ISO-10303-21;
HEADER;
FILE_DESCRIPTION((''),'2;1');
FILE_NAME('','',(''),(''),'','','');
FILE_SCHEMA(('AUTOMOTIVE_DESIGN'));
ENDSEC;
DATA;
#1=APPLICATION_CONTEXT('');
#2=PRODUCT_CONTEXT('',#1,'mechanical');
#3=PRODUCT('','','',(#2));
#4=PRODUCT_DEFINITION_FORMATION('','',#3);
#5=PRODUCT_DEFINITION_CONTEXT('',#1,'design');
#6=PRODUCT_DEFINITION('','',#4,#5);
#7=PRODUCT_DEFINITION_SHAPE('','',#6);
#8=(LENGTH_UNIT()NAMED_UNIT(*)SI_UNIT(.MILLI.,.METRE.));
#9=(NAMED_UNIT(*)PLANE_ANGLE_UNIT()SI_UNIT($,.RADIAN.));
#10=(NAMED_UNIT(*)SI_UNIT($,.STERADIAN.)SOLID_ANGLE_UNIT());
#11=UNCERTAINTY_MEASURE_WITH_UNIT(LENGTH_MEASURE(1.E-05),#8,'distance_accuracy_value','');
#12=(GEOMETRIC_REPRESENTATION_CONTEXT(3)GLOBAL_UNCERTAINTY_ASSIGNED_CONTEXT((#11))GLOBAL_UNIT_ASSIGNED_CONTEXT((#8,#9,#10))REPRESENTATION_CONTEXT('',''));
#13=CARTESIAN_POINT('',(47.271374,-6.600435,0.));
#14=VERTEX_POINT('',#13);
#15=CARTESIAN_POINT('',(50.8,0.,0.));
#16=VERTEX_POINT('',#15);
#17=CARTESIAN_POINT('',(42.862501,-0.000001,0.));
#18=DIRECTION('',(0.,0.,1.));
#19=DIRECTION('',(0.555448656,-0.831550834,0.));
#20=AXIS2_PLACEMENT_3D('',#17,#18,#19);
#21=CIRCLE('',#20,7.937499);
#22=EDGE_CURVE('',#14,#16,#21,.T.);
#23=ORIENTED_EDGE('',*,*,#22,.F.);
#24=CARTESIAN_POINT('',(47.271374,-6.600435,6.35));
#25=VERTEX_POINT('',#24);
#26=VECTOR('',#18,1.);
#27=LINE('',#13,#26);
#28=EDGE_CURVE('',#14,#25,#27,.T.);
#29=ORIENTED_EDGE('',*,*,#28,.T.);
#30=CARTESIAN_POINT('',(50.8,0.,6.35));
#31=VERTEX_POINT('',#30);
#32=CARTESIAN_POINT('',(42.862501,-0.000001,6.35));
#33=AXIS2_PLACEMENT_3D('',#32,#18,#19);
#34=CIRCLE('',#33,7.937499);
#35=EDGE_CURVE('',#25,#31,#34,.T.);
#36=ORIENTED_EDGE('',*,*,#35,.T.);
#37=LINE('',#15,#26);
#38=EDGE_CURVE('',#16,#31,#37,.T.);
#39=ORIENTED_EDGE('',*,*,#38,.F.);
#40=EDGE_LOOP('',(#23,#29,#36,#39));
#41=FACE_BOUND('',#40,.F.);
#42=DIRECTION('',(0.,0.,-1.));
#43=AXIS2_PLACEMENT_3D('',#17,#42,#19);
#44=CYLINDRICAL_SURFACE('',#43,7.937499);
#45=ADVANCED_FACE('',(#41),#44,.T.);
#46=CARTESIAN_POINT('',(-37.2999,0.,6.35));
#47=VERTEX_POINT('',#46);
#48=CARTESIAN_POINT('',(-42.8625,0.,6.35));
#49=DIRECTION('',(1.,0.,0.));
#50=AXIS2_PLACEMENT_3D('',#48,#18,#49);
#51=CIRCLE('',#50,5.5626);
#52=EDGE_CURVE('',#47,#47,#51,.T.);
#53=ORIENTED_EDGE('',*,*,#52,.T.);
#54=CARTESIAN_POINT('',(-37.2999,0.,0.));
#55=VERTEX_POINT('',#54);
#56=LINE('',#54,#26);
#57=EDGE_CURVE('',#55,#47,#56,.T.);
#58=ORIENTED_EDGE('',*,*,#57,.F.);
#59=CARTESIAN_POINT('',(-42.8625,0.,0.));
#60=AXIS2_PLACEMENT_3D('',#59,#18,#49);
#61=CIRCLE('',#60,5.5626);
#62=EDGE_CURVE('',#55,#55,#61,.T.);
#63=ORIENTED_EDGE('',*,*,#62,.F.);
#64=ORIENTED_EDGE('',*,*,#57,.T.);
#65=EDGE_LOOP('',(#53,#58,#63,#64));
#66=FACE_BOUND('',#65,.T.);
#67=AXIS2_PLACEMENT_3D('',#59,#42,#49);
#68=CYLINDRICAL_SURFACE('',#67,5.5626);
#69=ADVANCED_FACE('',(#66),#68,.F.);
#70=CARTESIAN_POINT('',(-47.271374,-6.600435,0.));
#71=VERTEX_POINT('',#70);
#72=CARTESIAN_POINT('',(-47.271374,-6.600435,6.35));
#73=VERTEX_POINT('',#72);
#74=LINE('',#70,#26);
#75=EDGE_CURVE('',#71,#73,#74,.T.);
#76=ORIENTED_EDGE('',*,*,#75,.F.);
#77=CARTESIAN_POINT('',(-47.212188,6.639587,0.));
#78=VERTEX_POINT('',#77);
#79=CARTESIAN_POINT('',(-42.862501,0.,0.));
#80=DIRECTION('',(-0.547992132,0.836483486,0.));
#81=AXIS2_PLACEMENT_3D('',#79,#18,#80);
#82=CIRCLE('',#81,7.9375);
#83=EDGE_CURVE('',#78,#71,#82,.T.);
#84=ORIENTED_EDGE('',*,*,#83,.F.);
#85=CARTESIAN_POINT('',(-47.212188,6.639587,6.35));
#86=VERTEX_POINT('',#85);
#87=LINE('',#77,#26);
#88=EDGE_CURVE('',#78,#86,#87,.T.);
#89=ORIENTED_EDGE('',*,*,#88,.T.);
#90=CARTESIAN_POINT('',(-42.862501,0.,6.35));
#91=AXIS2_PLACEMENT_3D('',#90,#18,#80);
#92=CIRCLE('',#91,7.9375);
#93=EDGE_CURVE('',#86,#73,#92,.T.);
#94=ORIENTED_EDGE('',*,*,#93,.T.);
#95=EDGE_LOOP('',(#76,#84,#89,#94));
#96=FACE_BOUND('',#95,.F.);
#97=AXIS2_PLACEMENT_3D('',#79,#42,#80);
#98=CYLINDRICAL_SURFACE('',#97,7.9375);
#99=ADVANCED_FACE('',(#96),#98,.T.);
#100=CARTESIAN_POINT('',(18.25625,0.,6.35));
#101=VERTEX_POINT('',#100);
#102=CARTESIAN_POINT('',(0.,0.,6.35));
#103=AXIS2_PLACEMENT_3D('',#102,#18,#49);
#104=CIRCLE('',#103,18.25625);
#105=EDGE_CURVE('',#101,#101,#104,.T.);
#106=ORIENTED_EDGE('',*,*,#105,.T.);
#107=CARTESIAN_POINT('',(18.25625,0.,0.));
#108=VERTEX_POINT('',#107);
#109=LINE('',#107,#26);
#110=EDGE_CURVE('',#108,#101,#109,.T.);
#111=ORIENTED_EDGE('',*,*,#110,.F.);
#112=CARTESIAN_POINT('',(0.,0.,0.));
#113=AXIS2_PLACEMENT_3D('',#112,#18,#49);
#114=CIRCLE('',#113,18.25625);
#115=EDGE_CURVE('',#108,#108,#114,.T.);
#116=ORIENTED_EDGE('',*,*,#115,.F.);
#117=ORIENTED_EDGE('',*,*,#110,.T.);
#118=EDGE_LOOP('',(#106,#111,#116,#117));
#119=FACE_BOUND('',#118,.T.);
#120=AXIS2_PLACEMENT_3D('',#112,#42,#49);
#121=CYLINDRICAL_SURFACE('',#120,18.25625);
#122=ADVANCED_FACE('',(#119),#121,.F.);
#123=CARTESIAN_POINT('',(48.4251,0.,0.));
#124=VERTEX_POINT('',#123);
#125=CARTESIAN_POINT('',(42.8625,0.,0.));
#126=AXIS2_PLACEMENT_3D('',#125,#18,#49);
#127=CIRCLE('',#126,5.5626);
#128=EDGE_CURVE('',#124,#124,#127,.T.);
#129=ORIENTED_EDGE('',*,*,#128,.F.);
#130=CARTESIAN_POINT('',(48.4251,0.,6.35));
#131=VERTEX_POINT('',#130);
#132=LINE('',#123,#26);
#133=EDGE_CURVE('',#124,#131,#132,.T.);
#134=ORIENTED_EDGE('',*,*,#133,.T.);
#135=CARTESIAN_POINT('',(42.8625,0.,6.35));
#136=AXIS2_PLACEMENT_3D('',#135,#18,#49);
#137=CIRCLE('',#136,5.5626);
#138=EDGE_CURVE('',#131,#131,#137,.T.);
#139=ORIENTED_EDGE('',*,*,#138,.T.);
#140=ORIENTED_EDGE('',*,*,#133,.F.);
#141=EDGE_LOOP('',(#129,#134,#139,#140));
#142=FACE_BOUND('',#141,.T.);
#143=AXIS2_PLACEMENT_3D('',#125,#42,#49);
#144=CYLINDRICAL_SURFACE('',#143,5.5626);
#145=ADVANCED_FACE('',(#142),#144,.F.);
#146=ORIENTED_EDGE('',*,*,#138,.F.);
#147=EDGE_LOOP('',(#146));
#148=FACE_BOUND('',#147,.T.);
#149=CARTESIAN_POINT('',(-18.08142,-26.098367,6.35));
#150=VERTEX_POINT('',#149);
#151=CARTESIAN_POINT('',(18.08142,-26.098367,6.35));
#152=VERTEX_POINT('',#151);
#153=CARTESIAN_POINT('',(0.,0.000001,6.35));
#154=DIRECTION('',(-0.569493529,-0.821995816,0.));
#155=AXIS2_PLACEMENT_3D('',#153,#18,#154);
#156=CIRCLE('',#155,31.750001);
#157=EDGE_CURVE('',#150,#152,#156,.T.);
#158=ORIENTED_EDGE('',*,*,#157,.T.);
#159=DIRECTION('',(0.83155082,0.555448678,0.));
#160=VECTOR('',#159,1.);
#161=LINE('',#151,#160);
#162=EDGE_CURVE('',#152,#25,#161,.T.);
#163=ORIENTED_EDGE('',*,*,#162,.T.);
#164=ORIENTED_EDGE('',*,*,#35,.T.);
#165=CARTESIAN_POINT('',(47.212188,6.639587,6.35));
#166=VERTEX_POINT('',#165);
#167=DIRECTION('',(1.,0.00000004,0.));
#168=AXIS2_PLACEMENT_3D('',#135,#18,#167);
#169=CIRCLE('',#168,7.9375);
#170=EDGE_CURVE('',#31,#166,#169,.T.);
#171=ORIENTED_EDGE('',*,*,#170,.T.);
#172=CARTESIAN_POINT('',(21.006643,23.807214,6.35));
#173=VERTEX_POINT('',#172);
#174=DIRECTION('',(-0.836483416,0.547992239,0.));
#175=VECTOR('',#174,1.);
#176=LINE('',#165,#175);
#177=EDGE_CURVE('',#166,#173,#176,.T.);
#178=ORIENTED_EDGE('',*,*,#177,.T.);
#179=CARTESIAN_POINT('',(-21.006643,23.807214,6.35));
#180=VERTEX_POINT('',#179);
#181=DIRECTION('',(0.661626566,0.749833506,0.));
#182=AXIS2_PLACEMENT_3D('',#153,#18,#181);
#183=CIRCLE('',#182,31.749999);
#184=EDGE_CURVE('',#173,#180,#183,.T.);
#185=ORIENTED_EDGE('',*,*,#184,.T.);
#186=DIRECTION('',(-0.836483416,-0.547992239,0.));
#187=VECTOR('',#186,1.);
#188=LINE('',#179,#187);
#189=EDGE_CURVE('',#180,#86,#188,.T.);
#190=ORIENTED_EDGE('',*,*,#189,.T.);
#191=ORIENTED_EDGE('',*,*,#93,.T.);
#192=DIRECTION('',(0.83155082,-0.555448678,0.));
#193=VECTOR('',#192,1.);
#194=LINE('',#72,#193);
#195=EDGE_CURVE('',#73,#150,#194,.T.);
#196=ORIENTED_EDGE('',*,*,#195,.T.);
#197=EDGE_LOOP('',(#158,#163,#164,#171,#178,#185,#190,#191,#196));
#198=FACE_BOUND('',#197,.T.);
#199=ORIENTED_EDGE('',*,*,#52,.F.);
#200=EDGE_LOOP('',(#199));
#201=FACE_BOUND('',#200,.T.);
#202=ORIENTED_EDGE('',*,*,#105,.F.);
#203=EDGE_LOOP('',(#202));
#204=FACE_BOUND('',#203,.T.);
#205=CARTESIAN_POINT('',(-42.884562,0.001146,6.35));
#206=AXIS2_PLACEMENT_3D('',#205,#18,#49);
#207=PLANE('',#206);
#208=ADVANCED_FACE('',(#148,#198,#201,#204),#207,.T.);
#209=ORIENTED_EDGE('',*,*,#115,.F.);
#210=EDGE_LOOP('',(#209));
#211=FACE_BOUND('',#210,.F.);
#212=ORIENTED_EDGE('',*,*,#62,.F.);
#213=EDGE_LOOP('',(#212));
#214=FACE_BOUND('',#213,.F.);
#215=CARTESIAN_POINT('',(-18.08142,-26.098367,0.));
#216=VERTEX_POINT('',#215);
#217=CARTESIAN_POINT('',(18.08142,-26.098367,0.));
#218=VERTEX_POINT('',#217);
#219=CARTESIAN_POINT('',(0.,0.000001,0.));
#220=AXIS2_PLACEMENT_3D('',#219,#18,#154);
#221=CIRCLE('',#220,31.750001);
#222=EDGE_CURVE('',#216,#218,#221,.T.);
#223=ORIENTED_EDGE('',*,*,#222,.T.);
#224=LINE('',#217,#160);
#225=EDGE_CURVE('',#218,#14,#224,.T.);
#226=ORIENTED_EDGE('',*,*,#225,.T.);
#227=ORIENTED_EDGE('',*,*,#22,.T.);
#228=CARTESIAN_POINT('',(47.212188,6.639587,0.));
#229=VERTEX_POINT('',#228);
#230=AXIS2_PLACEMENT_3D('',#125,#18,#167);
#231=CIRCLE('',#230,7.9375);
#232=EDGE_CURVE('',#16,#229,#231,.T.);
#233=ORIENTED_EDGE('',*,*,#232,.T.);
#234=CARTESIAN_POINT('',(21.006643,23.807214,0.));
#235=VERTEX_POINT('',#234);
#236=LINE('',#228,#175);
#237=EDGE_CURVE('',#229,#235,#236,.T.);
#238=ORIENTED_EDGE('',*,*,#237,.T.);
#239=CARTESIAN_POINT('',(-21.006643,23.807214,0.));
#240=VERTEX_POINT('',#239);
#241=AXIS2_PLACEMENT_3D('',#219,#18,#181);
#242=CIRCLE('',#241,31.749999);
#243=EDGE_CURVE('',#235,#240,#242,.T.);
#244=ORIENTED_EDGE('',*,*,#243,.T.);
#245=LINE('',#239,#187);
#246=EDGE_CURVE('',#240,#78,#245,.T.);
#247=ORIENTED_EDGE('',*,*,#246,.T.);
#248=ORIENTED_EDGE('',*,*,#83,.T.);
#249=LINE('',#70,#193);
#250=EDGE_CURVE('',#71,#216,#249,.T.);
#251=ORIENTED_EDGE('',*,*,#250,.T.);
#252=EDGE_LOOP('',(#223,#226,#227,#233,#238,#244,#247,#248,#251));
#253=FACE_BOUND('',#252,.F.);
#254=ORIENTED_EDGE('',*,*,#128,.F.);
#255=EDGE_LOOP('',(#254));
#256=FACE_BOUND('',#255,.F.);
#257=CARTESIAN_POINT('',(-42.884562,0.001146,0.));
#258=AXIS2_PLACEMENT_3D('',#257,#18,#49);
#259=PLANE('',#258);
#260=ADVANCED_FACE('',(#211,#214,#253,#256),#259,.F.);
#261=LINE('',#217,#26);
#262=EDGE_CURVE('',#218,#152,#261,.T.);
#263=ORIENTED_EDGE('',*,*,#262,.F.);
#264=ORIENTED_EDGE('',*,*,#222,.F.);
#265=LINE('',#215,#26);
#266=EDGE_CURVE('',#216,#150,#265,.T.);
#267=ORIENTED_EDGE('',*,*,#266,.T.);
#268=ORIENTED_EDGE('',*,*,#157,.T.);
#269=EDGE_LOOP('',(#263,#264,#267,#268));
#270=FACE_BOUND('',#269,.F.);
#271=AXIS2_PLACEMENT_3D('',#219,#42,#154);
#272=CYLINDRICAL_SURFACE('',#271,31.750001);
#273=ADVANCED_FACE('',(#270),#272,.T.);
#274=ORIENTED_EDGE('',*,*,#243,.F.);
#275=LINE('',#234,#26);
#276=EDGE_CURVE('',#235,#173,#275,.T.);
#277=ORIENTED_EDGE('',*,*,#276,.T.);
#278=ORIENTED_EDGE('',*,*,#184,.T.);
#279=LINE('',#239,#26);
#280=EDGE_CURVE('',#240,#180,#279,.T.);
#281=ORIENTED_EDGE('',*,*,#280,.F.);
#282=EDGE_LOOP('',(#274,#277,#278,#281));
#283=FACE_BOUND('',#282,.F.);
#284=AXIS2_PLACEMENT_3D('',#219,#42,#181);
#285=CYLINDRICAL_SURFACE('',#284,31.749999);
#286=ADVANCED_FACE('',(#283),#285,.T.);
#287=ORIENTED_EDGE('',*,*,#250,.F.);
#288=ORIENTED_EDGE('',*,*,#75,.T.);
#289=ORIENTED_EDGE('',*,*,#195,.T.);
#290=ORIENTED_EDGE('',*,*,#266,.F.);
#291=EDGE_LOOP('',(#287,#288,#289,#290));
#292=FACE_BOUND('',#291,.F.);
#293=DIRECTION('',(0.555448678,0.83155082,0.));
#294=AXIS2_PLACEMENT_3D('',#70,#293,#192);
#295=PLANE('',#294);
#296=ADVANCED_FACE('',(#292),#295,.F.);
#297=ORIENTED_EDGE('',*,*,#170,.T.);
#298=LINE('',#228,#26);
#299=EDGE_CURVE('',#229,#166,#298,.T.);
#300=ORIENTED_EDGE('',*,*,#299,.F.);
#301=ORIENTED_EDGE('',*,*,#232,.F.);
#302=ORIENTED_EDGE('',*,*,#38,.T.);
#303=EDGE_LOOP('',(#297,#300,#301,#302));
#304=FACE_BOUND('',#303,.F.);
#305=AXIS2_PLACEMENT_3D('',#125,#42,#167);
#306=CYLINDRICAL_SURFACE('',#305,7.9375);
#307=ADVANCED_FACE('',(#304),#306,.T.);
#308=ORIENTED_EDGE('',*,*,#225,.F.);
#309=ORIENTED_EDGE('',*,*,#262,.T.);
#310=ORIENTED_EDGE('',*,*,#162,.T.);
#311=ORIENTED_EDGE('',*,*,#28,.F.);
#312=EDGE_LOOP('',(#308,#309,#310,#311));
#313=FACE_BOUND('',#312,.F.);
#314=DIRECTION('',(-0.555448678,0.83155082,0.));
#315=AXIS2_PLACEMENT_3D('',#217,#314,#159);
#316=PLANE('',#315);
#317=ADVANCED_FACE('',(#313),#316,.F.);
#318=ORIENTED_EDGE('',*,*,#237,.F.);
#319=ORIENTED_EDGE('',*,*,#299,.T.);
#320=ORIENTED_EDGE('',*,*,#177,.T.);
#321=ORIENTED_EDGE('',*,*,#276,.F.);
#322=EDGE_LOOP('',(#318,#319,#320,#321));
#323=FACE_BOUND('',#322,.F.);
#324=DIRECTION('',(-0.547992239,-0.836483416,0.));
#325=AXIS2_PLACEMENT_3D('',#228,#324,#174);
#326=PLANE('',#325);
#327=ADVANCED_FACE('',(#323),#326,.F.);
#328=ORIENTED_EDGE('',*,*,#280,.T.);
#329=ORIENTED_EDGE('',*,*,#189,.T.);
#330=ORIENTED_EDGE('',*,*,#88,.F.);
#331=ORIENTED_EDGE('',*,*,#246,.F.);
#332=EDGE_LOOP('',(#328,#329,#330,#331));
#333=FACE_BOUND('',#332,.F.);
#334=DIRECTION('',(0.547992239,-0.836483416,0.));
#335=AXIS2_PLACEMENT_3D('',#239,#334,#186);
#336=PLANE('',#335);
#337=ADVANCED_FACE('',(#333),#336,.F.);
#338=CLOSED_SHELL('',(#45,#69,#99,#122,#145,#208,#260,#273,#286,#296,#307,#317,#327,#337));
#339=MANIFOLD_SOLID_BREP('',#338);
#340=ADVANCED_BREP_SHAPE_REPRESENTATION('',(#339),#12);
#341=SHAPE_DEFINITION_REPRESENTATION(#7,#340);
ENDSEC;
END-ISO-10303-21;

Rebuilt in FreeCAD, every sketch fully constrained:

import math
import FreeCAD as App
import Part
import Sketcher
Q = App.Units.Quantity

doc = App.newDocument("Part")
body = doc.addObject("PartDesign::Body", "Body")

# Sketch on XY plane
sketch1 = body.newObject("Sketcher::SketchObject", "Sketch")
sketch1.AttachmentSupport = (doc.getObject("XY_Plane"), [""])
sketch1.MapMode = "FlatFace"
sketch1.addGeometry([
    Part.ArcOfCircle(Part.Circle(App.Vector(-43, 0, 0), App.Vector(0, 0, 1), 8), math.radians(123), math.radians(236)),  # 0
    Part.LineSegment(App.Vector(-47, -7, 0), App.Vector(-18, -26, 0)),  # 1
    Part.ArcOfCircle(Part.Circle(App.Vector(0, 0, 0), App.Vector(0, 0, 1), 32), math.radians(-125), math.radians(-55)),  # 2
    Part.LineSegment(App.Vector(18, -26, 0), App.Vector(47, -7, 0)),  # 3
    Part.ArcOfCircle(Part.Circle(App.Vector(43, 0, 0), App.Vector(0, 0, 1), 8), math.radians(-56), math.radians(0)),  # 4
    Part.ArcOfCircle(Part.Circle(App.Vector(43, 0, 0), App.Vector(0, 0, 1), 8), math.radians(0), math.radians(57)),  # 5
    Part.LineSegment(App.Vector(47, 7, 0), App.Vector(21, 24, 0)),  # 6
    Part.ArcOfCircle(Part.Circle(App.Vector(0, 0, 0), App.Vector(0, 0, 1), 32), math.radians(49), math.radians(131)),  # 7
    Part.LineSegment(App.Vector(-21, 24, 0), App.Vector(-47, 7, 0)),  # 8
    Part.Circle(App.Vector(-43, 0, 0), App.Vector(0, 0, 1), 6),  # 9
    Part.Circle(App.Vector(0, 0, 0), App.Vector(0, 0, 1), 18),  # 10
    Part.Circle(App.Vector(43, 0, 0), App.Vector(0, 0, 1), 6),  # 11
], False)
sketch1.addConstraint([
    Sketcher.Constraint("Tangent", 0, 2, 1, 1),
    Sketcher.Constraint("Coincident", 1, 2, 2, 1),
    Sketcher.Constraint("Coincident", 2, 2, 3, 1),
    Sketcher.Constraint("Tangent", 3, 2, 4, 1),
    Sketcher.Constraint("Tangent", 4, 2, 5, 1),
    Sketcher.Constraint("Tangent", 5, 2, 6, 1),
    Sketcher.Constraint("Coincident", 6, 2, 7, 1),
    Sketcher.Constraint("Coincident", 7, 2, 8, 1),
    Sketcher.Constraint("Tangent", 8, 2, 0, 1),
    Sketcher.Constraint("Coincident", 2, 3, -1, 1),
    Sketcher.Constraint("Coincident", 7, 3, -1, 1),
    Sketcher.Constraint("Coincident", 10, 3, -1, 1),
    Sketcher.Constraint("Coincident", 9, 3, 0, 3),
    Sketcher.Constraint("Coincident", 11, 3, 4, 3),
    Sketcher.Constraint("Equal", 0, 4),
    Sketcher.Constraint("Equal", 4, 5),
    Sketcher.Constraint("Equal", 2, 7),
    Sketcher.Constraint("Equal", 9, 11),
    Sketcher.Constraint("Symmetric", 0, 3, 4, 3, -1, 1),
    Sketcher.Constraint("Symmetric", 0, 2, 3, 2, -2),
    Sketcher.Constraint("PointOnObject", 4, 2, -1),
    Sketcher.Constraint("Horizontal", 6, 2, 7, 2),
    Sketcher.Constraint("Radius", 2, Q("1.25 in")),
    Sketcher.Constraint("Diameter", 9, Q("0.438 in")),
    Sketcher.Constraint("Diameter", 10, Q("1.4375 in")),
    Sketcher.Constraint("DistanceX", -1, 1, 4, 2, Q("2 in")),
    Sketcher.Constraint("Radius", 0, Q("0.3125 in")),
    Sketcher.Constraint("Distance", 1, Q("35.103031 mm")),
    Sketcher.Constraint("Distance", 6, Q("31.32823 mm")),
])
pad1 = body.newObject("PartDesign::Pad", "Pad")
pad1.Profile = sketch1
pad1.Length = Q("0.25 in")

doc.recompute()
